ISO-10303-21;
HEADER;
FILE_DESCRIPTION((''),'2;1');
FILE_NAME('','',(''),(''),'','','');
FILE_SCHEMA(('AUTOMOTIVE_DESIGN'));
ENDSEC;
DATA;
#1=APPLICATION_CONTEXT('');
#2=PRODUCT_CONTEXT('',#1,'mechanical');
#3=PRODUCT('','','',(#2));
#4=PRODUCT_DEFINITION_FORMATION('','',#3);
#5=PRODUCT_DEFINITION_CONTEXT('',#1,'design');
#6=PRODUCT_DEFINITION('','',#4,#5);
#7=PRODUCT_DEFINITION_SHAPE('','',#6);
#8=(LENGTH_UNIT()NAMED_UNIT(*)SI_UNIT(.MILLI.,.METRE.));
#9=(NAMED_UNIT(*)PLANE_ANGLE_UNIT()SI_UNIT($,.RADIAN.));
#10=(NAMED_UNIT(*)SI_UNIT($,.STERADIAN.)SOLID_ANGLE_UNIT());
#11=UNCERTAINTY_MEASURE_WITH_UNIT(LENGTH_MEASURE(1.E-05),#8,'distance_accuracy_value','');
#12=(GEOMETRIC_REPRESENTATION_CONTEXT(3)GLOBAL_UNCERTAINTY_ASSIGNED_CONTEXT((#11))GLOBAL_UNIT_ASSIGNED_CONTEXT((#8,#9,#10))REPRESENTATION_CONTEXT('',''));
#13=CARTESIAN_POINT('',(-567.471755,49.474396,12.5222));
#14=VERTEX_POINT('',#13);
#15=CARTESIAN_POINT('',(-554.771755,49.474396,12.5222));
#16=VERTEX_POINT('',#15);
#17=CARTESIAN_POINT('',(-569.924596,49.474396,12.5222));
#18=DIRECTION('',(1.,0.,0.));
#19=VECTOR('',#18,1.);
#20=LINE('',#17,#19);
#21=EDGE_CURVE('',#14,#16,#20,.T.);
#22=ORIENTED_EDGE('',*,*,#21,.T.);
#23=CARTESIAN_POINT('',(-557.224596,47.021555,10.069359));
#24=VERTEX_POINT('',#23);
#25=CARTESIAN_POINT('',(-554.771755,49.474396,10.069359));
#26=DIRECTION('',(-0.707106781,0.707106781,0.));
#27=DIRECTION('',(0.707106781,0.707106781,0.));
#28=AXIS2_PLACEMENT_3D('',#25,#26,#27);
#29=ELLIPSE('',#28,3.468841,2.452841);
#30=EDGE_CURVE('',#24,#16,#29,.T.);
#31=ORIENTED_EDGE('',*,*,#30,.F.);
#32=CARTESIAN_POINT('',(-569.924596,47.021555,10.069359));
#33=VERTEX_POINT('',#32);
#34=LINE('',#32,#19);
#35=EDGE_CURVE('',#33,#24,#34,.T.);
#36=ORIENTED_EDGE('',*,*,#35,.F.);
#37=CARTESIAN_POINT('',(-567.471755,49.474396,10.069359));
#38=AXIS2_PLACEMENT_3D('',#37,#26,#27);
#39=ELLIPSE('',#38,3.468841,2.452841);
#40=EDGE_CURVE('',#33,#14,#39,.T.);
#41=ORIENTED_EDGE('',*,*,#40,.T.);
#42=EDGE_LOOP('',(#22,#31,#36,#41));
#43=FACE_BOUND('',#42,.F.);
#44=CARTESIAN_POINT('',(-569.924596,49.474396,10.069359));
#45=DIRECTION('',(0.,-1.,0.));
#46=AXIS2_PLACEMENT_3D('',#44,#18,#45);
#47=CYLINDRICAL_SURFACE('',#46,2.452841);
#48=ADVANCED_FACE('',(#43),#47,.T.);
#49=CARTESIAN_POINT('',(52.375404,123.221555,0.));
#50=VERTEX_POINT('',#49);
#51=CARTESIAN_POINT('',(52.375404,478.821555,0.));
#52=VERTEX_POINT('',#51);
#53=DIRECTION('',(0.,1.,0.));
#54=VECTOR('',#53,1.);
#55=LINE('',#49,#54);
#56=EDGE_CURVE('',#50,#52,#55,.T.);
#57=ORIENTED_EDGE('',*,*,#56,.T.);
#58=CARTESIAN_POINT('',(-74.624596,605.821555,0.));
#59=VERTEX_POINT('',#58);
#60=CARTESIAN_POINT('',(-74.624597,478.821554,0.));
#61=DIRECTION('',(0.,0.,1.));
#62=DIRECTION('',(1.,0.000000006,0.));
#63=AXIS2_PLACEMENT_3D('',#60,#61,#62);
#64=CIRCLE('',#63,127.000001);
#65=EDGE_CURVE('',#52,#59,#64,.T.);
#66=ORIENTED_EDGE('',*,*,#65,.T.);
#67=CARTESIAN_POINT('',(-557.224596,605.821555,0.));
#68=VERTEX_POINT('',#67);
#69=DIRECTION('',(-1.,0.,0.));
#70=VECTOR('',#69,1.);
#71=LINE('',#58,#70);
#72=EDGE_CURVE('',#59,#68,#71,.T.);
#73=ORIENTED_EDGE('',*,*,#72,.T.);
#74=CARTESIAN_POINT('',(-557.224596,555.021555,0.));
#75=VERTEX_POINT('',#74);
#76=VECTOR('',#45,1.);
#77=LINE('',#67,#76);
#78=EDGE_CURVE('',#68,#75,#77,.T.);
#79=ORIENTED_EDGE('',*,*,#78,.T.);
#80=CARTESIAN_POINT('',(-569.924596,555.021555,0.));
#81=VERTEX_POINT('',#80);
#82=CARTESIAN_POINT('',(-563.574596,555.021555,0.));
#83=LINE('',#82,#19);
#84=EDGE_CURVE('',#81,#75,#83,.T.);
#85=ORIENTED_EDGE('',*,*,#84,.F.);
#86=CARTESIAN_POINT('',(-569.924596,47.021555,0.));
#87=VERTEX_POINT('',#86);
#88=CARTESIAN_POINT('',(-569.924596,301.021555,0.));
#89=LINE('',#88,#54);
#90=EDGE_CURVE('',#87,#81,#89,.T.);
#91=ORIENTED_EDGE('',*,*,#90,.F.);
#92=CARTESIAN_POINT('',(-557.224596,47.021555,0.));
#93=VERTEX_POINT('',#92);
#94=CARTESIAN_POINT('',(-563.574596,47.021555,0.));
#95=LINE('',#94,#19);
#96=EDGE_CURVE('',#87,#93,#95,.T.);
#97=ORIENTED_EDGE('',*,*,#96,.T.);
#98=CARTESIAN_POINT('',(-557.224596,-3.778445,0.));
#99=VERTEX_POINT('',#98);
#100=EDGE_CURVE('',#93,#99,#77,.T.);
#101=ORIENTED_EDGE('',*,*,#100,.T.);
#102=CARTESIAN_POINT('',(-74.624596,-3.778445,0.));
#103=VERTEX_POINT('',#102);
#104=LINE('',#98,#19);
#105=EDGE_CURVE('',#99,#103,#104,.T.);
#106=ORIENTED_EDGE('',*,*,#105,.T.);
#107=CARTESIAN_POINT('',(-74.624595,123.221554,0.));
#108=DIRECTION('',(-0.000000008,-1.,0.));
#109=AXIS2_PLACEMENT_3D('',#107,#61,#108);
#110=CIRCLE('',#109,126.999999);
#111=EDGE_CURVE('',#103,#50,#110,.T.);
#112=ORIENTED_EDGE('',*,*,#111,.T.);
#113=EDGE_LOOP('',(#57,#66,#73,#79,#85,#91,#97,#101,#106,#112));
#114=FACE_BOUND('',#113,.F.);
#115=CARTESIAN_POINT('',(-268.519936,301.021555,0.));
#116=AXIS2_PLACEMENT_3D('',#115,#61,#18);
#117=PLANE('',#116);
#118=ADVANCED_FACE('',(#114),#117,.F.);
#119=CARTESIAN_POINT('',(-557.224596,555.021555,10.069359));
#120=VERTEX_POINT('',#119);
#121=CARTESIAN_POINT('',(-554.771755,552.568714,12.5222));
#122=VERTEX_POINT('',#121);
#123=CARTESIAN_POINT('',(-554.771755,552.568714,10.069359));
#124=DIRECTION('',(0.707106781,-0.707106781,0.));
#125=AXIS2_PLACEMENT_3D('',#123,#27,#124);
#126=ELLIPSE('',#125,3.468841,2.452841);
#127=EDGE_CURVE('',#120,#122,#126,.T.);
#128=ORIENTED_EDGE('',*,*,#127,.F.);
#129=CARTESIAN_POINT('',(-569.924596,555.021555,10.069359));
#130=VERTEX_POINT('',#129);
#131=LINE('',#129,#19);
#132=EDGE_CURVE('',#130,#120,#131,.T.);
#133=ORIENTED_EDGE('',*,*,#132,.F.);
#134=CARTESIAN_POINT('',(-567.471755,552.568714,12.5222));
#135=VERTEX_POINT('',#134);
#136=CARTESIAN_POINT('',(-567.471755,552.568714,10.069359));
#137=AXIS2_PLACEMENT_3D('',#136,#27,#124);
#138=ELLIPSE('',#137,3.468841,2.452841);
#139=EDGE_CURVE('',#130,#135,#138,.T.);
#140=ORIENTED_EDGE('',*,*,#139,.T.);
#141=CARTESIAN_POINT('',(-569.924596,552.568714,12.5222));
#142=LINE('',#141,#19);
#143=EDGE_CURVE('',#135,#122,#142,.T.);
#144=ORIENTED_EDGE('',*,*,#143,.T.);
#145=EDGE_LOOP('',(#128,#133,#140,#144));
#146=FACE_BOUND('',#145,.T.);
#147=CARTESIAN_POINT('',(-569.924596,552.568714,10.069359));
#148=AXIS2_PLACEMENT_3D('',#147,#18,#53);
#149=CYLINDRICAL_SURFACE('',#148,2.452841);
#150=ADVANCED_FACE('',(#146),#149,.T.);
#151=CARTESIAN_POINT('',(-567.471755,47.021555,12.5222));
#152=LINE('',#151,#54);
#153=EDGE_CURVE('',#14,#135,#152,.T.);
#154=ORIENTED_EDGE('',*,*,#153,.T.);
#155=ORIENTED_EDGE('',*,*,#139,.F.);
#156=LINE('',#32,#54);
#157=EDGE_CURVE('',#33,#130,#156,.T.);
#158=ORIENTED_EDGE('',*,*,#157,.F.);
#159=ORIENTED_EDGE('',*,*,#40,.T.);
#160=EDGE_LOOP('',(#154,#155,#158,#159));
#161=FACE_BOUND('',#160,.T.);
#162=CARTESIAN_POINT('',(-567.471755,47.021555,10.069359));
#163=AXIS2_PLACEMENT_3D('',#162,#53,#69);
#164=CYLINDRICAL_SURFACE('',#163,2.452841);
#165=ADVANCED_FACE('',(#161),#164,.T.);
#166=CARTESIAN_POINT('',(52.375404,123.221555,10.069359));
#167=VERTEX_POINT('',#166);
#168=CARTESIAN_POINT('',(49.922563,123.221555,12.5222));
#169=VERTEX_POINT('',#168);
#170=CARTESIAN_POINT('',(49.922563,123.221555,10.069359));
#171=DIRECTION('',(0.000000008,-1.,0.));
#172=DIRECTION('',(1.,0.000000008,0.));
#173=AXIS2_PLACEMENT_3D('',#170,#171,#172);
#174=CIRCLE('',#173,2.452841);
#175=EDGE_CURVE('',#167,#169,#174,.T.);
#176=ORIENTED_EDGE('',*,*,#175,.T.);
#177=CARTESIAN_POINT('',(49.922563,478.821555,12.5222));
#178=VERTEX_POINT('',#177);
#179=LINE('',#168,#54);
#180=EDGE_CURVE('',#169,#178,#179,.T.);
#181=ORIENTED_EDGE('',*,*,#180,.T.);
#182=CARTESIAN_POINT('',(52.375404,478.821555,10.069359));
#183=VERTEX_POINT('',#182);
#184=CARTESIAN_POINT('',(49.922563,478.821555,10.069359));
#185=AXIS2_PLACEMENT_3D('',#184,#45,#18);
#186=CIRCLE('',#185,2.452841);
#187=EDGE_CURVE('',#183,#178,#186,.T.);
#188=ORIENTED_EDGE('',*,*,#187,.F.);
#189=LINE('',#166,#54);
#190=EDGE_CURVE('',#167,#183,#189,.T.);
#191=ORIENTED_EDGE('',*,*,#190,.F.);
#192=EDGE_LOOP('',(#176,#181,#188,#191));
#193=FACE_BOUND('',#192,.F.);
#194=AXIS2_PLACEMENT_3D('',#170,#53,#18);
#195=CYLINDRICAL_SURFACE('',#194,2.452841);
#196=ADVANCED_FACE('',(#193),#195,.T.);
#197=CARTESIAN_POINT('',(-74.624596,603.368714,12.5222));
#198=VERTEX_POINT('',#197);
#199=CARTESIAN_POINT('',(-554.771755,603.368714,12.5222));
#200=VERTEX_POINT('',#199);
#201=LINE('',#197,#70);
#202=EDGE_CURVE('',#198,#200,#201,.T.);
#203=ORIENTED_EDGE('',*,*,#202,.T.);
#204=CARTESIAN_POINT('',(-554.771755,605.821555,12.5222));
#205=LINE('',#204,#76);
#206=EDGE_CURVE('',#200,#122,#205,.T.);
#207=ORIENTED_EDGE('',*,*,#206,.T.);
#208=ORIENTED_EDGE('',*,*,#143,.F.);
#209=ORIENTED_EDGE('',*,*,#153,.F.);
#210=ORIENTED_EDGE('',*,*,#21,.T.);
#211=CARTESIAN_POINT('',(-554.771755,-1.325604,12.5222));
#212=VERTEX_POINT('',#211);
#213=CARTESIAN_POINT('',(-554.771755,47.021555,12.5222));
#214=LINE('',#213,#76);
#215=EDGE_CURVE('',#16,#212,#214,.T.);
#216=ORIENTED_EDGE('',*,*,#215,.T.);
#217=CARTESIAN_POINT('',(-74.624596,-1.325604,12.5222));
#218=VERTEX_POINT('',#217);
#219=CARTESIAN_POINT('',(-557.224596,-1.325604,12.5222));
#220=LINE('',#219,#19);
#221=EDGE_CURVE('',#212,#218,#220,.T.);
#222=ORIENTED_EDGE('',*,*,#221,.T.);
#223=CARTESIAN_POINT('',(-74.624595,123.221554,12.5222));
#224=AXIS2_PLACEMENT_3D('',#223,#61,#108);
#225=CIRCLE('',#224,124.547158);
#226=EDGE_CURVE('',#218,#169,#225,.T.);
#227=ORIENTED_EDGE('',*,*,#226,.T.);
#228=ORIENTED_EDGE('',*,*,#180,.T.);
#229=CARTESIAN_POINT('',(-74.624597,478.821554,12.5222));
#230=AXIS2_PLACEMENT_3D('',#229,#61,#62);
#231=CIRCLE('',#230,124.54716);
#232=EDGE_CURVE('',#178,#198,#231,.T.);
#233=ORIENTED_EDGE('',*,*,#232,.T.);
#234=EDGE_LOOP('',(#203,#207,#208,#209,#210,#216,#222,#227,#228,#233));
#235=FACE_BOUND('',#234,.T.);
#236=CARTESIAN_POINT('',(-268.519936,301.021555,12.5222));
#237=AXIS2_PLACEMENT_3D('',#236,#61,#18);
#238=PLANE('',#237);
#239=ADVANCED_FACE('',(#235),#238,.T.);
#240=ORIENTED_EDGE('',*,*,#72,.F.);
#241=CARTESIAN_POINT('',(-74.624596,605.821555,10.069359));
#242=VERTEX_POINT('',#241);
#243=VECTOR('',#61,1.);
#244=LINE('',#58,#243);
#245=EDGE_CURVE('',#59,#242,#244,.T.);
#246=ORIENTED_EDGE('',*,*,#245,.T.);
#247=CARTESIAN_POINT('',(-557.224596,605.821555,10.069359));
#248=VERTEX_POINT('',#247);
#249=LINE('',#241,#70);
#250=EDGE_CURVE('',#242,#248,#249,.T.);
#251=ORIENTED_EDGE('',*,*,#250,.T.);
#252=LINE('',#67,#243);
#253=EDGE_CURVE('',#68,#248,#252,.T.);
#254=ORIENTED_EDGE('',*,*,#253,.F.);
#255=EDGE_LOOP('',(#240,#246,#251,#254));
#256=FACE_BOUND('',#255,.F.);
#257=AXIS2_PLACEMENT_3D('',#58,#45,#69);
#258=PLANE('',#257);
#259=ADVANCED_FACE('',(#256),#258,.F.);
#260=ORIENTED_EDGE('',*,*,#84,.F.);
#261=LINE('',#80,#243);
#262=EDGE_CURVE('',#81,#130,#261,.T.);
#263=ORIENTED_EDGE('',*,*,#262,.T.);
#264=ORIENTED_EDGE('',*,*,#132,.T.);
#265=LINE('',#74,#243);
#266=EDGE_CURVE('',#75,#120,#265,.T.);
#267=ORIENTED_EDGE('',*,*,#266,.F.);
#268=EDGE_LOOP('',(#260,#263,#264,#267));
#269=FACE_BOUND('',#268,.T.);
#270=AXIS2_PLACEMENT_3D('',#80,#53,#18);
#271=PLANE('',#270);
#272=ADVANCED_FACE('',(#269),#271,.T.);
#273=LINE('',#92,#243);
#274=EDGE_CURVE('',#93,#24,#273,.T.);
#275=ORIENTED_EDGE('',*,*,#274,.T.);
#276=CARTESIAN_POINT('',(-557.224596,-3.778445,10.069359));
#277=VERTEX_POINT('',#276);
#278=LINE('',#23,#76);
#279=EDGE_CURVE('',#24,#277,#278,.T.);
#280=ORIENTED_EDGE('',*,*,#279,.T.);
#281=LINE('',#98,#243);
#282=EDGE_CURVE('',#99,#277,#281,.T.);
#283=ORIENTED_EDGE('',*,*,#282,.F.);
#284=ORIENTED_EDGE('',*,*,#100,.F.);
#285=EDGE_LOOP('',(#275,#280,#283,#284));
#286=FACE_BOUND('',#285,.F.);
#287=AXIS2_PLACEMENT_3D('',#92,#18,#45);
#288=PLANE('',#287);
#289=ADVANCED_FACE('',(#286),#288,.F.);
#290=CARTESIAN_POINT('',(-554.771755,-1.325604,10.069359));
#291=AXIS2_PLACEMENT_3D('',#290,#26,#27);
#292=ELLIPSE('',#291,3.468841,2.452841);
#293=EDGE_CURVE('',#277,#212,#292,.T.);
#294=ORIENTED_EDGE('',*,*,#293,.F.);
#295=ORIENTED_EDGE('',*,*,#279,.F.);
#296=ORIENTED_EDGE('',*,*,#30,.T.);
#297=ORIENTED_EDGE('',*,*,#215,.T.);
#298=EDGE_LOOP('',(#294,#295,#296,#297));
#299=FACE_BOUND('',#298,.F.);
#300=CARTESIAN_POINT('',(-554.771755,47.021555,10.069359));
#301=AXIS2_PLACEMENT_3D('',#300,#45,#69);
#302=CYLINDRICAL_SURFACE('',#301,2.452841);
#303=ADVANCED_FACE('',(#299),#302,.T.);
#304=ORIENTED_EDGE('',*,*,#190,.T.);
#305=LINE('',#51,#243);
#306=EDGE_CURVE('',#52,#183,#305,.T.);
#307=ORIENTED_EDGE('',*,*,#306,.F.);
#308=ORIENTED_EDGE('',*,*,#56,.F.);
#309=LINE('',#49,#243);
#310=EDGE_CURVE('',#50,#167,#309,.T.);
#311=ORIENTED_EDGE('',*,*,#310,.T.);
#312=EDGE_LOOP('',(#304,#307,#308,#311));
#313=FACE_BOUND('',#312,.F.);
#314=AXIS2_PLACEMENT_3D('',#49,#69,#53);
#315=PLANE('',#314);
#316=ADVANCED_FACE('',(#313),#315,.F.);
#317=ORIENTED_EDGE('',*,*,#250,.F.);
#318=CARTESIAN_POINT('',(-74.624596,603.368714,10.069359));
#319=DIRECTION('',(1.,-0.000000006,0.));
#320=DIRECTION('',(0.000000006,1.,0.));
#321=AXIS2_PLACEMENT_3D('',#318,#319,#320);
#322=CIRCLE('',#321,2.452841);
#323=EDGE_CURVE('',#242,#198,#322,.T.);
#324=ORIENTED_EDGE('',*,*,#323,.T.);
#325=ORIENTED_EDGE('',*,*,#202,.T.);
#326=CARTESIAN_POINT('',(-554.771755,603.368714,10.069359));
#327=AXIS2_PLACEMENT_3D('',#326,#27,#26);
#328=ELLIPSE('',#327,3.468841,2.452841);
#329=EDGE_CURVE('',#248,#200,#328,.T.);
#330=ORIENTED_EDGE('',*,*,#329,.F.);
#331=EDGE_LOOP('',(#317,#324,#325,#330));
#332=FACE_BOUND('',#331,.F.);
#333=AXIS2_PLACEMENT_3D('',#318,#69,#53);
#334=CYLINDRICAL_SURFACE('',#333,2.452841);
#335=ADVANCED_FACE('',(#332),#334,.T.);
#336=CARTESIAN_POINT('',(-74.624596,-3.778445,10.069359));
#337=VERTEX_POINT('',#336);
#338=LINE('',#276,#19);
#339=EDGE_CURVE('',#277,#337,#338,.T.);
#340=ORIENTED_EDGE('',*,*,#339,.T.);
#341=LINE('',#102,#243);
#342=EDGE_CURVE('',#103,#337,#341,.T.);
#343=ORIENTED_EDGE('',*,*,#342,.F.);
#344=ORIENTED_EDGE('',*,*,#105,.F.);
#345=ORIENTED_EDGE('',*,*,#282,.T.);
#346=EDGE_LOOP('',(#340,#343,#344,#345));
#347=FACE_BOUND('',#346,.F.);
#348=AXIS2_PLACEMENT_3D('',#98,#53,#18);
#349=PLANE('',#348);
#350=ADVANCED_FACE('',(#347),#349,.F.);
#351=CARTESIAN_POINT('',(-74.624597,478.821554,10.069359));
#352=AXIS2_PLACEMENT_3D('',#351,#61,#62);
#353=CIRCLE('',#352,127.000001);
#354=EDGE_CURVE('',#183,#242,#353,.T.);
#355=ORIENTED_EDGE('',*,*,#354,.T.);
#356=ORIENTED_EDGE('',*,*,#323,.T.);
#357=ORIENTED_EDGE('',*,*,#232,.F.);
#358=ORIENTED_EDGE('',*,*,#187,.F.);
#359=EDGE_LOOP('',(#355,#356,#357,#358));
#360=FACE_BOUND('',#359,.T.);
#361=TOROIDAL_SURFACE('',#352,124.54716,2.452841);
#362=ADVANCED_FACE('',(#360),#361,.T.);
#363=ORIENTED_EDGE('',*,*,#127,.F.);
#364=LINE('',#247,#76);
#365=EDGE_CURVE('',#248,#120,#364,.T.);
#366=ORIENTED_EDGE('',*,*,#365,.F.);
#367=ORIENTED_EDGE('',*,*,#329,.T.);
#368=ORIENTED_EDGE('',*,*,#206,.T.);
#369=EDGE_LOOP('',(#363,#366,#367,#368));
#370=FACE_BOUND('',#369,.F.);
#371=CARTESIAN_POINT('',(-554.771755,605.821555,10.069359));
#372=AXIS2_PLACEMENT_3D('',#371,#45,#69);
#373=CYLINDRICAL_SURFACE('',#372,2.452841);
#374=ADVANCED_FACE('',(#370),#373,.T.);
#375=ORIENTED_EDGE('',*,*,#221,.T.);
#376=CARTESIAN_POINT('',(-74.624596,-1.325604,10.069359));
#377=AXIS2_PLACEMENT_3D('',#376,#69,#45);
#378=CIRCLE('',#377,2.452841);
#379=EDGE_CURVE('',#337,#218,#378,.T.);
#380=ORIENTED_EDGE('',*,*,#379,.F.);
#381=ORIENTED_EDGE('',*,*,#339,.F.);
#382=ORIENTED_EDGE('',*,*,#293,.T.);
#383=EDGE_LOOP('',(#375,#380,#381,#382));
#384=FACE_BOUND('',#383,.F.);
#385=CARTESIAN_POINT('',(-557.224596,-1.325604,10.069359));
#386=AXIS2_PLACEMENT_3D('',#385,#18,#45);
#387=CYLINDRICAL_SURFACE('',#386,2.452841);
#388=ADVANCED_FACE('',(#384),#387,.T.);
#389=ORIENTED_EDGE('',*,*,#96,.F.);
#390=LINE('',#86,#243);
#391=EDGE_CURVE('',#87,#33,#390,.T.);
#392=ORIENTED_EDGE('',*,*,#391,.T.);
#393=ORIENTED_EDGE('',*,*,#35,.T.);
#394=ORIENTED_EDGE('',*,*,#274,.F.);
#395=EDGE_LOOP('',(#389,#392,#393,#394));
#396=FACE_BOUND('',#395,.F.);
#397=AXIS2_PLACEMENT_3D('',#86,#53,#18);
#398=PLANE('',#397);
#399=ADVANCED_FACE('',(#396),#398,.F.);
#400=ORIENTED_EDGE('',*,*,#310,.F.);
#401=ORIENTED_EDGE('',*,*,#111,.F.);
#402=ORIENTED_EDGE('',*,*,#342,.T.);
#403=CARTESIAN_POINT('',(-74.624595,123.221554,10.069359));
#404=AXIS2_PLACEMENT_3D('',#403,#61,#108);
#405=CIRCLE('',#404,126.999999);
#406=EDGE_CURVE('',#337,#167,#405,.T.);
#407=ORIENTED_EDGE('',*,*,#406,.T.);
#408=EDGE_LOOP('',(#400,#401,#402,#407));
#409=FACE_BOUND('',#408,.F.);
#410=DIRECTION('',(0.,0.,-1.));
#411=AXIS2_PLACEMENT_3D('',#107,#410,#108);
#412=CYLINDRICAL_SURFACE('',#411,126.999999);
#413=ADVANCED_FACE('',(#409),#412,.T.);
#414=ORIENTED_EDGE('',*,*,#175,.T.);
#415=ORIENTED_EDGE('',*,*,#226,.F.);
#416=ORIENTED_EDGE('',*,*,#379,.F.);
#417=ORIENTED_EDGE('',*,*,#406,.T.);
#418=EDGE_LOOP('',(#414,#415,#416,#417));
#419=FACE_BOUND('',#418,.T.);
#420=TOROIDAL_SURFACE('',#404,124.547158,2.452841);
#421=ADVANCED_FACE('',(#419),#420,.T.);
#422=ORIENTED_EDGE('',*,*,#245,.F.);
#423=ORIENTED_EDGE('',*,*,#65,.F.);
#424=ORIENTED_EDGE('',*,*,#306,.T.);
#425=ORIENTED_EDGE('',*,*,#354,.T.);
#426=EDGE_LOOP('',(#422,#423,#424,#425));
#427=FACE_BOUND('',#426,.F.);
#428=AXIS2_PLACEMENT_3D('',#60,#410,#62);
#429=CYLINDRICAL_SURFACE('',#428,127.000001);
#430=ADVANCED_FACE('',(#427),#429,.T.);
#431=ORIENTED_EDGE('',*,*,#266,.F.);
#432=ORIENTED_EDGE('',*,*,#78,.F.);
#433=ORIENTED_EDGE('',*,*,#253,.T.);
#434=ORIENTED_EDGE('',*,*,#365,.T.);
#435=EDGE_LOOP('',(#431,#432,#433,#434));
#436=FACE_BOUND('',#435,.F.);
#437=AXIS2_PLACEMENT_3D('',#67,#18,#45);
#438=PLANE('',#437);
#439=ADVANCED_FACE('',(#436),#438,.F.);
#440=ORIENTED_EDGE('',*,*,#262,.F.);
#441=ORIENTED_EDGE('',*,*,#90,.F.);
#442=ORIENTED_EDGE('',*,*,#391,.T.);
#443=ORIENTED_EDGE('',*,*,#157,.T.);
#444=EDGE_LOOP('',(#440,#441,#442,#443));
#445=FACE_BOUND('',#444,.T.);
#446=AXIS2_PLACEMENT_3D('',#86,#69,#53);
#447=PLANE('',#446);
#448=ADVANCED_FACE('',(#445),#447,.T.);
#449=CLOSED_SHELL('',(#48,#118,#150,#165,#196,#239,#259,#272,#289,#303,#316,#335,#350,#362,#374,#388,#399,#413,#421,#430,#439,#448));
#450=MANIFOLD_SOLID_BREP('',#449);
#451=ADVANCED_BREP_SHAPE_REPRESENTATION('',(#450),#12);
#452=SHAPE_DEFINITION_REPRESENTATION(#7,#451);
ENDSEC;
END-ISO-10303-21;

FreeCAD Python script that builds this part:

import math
import FreeCAD as App
import Part
import Sketcher
Q = App.Units.Quantity


def edges_at(feature, points):
    """Names of the edges that pass closest to the given points."""
    edges = feature.Shape.Edges
    near = lambda p: min(range(len(edges)), key=lambda i: edges[i].distToShape(Part.Vertex(*p))[0])
    return sorted({f"Edge{near(p) + 1}" for p in points})

doc = App.newDocument("Part")
body = doc.addObject("PartDesign::Body", "Body")

sketch1 = body.newObject("Sketcher::SketchObject", "Sketch")
sketch1.AttachmentSupport = (doc.getObject("XY_Plane"), [""])
sketch1.MapMode = "FlatFace"
sketch1.addGeometry(Part.LineSegment(App.Vector(-75, 606, 0), App.Vector(-557, 606, 0)), False)
sketch1.addGeometry(Part.LineSegment(App.Vector(-557, 606, 0), App.Vector(-557, 555, 0)), False)
sketch1.addGeometry(Part.LineSegment(App.Vector(-557, 555, 0), App.Vector(-570, 555, 0)), False)
sketch1.addGeometry(Part.LineSegment(App.Vector(-570, 555, 0), App.Vector(-570, 47, 0)), False)
sketch1.addGeometry(Part.LineSegment(App.Vector(-570, 47, 0), App.Vector(-557, 47, 0)), False)
sketch1.addGeometry(Part.LineSegment(App.Vector(-557, 47, 0), App.Vector(-557, -4, 0)), False)
sketch1.addGeometry(Part.LineSegment(App.Vector(-557, -4, 0), App.Vector(-75, -4, 0)), False)
sketch1.addGeometry(Part.ArcOfCircle(Part.Circle(App.Vector(-75, 123, 0), App.Vector(0, 0, 1), 127), math.radians(-90), math.radians(0)), False)
sketch1.addGeometry(Part.LineSegment(App.Vector(52, 123, 0), App.Vector(52, 479, 0)), False)
sketch1.addGeometry(Part.ArcOfCircle(Part.Circle(App.Vector(-75, 479, 0), App.Vector(0, 0, 1), 127), math.radians(0), math.radians(90)), False)
sketch1.addConstraint(Sketcher.Constraint("Coincident", 0, 2, 1, 1))
sketch1.addConstraint(Sketcher.Constraint("Coincident", 1, 2, 2, 1))
sketch1.addConstraint(Sketcher.Constraint("Coincident", 2, 2, 3, 1))
sketch1.addConstraint(Sketcher.Constraint("Coincident", 3, 2, 4, 1))
sketch1.addConstraint(Sketcher.Constraint("Coincident", 4, 2, 5, 1))
sketch1.addConstraint(Sketcher.Constraint("Coincident", 5, 2, 6, 1))
sketch1.addConstraint(Sketcher.Constraint("Tangent", 6, 2, 7, 1))
sketch1.addConstraint(Sketcher.Constraint("Tangent", 7, 2, 8, 1))
sketch1.addConstraint(Sketcher.Constraint("Tangent", 8, 2, 9, 1))
sketch1.addConstraint(Sketcher.Constraint("Tangent", 9, 2, 0, 1))
sketch1.addConstraint(Sketcher.Constraint("Horizontal", 0))
sketch1.addConstraint(Sketcher.Constraint("Vertical", 1))
sketch1.addConstraint(Sketcher.Constraint("Horizontal", 2))
sketch1.addConstraint(Sketcher.Constraint("Vertical", 3))
sketch1.addConstraint(Sketcher.Constraint("Horizontal", 4))
sketch1.addConstraint(Sketcher.Constraint("Vertical", 5))
sketch1.addConstraint(Sketcher.Constraint("Horizontal", 6))
sketch1.addConstraint(Sketcher.Constraint("Vertical", 8))
sketch1.addConstraint(Sketcher.Constraint("Equal", 7, 9))
sketch1.addConstraint(Sketcher.Constraint("Vertical", 1, 2, 4, 2))
sketch1.addConstraint(Sketcher.Constraint("Equal", 1, 5))
sketch1.addConstraint(Sketcher.Constraint("Radius", 7, Q("5 in")))
sketch1.addConstraint(Sketcher.Constraint("DistanceX", 0, 2, 0, 1, Q("19 in")))
sketch1.addConstraint(Sketcher.Constraint("DistanceY", 1, 2, 1, 1, Q("2 in")))
sketch1.addConstraint(Sketcher.Constraint("DistanceY", 3, 2, 3, 1, Q("20 in")))
sketch1.addConstraint(Sketcher.Constraint("DistanceX", 2, 2, 2, 1, Q("0.5 in")))
sketch1.addConstraint(Sketcher.Constraint("DistanceX", 7, 3, -1, 1, 74.624595))
sketch1.addConstraint(Sketcher.Constraint("DistanceY", -1, 1, 7, 3, 123.221554))
pad1 = body.newObject("PartDesign::Pad", "Pad")
pad1.Profile = sketch1
pad1.Length = Q("0.493 in")
doc.recompute()

fillet = body.newObject("PartDesign::Fillet", "Fillet")
fillet.Base = (pad1, edges_at(pad1, [
    (52.375, 301.022, 12.522),
    (15.178, 568.624, 12.522),
    (-315.925, 605.822, 12.522),
    (-557.225, 580.422, 12.522),
    (-563.575, 555.022, 12.522),
    (-569.925, 301.022, 12.522),
    (-563.575, 47.022, 12.522),
    (-557.225, 21.622, 12.522),
    (-315.925, -3.778, 12.522),
    (15.178, 33.419, 12.522),
]))
fillet.Radius = 2.452841

doc.recompute()
